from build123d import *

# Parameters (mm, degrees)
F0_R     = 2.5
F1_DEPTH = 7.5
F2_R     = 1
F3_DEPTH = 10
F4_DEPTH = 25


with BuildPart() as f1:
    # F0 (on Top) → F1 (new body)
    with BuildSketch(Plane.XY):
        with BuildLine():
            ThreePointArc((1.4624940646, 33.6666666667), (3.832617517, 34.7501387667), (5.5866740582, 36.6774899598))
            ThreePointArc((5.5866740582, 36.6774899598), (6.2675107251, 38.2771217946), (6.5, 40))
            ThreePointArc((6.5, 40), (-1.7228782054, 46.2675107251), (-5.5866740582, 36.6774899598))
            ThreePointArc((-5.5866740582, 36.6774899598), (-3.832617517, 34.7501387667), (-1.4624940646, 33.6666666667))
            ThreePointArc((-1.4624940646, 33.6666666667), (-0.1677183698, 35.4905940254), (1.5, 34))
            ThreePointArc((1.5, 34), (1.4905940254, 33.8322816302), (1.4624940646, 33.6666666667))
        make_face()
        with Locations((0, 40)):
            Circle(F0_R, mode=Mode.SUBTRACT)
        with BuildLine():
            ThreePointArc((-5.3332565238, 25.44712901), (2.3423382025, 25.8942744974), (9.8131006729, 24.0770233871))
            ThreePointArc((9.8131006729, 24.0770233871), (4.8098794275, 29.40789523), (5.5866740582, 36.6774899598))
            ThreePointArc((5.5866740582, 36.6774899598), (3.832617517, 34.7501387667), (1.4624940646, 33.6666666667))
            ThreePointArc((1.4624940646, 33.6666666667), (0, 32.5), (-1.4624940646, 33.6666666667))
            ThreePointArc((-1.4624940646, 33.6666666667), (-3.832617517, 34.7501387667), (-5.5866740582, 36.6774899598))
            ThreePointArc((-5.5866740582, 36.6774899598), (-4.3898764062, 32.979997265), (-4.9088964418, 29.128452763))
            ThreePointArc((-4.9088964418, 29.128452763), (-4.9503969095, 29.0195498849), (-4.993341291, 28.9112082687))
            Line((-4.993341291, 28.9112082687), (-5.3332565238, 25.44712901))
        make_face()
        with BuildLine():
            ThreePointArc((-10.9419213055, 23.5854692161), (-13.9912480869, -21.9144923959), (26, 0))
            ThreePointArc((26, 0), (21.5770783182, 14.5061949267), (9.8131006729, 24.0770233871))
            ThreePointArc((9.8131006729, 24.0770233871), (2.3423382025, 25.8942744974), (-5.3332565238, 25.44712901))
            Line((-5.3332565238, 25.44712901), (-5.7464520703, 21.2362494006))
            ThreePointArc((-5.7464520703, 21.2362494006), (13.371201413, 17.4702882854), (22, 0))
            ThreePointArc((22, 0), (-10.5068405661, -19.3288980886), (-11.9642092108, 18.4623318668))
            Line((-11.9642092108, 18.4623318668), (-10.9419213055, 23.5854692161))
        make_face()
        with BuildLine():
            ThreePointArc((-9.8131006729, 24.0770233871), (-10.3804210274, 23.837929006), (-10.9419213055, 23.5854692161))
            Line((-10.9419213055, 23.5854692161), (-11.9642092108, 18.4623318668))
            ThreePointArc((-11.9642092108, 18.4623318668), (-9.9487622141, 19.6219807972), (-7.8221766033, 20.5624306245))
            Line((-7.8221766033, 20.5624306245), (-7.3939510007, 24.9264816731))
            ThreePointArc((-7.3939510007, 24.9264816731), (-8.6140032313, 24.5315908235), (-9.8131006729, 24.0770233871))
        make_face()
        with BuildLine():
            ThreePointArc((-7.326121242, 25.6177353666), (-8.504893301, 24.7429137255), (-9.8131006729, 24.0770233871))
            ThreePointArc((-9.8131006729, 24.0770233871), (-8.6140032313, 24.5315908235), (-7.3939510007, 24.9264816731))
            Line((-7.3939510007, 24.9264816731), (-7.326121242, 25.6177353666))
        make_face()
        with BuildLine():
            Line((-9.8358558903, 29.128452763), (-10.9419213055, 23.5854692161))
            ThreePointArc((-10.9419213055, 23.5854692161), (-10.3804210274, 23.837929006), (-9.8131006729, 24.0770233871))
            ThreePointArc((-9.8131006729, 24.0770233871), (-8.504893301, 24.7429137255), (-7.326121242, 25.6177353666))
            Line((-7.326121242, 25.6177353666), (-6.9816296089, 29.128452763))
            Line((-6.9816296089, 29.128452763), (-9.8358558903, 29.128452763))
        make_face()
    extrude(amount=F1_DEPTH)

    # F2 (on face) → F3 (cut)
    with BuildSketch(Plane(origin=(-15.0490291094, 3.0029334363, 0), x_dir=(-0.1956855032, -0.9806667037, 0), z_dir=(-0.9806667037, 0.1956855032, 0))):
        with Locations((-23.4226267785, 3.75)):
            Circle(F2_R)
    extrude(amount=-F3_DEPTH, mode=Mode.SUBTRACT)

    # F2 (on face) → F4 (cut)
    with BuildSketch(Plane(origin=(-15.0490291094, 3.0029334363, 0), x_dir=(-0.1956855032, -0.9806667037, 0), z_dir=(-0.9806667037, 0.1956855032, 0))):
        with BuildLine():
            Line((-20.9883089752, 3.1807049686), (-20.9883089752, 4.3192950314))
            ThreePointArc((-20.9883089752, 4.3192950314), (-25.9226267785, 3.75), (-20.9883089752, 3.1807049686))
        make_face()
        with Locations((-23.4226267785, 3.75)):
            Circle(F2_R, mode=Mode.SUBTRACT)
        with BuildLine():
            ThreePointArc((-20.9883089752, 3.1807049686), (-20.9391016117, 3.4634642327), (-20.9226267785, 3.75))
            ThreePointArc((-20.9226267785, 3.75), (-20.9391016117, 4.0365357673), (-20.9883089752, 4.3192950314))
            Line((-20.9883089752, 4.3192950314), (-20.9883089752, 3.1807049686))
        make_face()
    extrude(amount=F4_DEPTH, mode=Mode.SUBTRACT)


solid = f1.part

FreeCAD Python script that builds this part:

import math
import FreeCAD as App
import Part
import Sketcher
from FreeCAD import Vector
Q = App.Units.Quantity

doc = App.newDocument("Part")
body = doc.addObject("PartDesign::Body", "Body")

# Sketch on XY plane
sketch1 = body.newObject("Sketcher::SketchObject", "Sketch")
sketch1.AttachmentSupport = (doc.getObject("XY_Plane"), [""])
sketch1.MapMode = "FlatFace"
sketch1.addGeometry(Part.ArcOfCircle(Part.Circle(Vector(0, 40, 0), Vector(0, 0, 1), 6.5), math.radians(-31), math.radians(0)), False)
sketch1.addGeometry(Part.ArcOfCircle(Part.Circle(Vector(0, 40, 0), Vector(0, 0, 1), 6.5), math.radians(0), math.radians(211)), False)
sketch1.addGeometry(Part.ArcOfCircle(Part.Circle(Vector(-13.12, 32.2, 0), Vector(0, 0, 1), 8.77), math.radians(-20), math.radians(31)), False)
sketch1.addGeometry(Part.ArcOfCircle(Part.Circle(Vector(-13.12, 32.2, 0), Vector(0, 0, 1), 8.77), math.radians(-22), math.radians(-20.48)), False)
sketch1.addGeometry(Part.LineSegment(Vector(-4.99, 28.91, 0), Vector(-5.33, 25.45, 0)), False)
sketch1.addGeometry(Part.LineSegment(Vector(-5.33, 25.45, 0), Vector(-5.75, 21.24, 0)), False)
sketch1.addGeometry(Part.ArcOfCircle(Part.Circle(Vector(0, 0, 0), Vector(0, 0, 1), 22), math.radians(0), math.radians(105)), False)
sketch1.addGeometry(Part.ArcOfCircle(Part.Circle(Vector(0, 0, 0), Vector(0, 0, 1), 22), math.radians(123), math.radians(360)), False)
sketch1.addGeometry(Part.ArcOfCircle(Part.Circle(Vector(0, 0, 0), Vector(0, 0, 1), 22), math.radians(110.83), math.radians(122.94)), False)
sketch1.addGeometry(Part.LineSegment(Vector(-7.82, 20.56, 0), Vector(-7.39, 24.93, 0)), False)
sketch1.addGeometry(Part.LineSegment(Vector(-7.39, 24.93, 0), Vector(-7.33, 25.62, 0)), False)
sketch1.addGeometry(Part.LineSegment(Vector(-7.33, 25.62, 0), Vector(-6.98, 29.13, 0)), False)
sketch1.addGeometry(Part.LineSegment(Vector(-6.98, 29.13, 0), Vector(-9.84, 29.13, 0)), False)
sketch1.addGeometry(Part.LineSegment(Vector(-9.84, 29.13, 0), Vector(-10.94, 23.59, 0)), False)
sketch1.addGeometry(Part.ArcOfCircle(Part.Circle(Vector(0, 0, 0), Vector(0, 0, 1), 26), math.radians(115), math.radians(360)), False)
sketch1.addGeometry(Part.ArcOfCircle(Part.Circle(Vector(0, 0, 0), Vector(0, 0, 1), 26), math.radians(0), math.radians(68)), False)
sketch1.addGeometry(Part.ArcOfCircle(Part.Circle(Vector(13.12, 32.2, 0), Vector(0, 0, 1), 8.77), math.radians(149), math.radians(248)), False)
sketch1.addGeometry(Part.ArcOfCircle(Part.Circle(Vector(0, 34, 0), Vector(0, 0, 1), 1.5), math.radians(-12.84), math.radians(0)), False)
sketch1.addGeometry(Part.ArcOfCircle(Part.Circle(Vector(0, 34, 0), Vector(0, 0, 1), 1.5), math.radians(-167), math.radians(-13)), False)
sketch1.addGeometry(Part.ArcOfCircle(Part.Circle(Vector(0, 34, 0), Vector(0, 0, 1), 1.5), math.radians(0), math.radians(193)), False)
sketch1.addGeometry(Part.Circle(Vector(0, 40, 0), Vector(0, 0, 1), 2.5), False)
sketch1.addConstraint(Sketcher.Constraint("Tangent", 0, 2, 1, 1))
sketch1.addConstraint(Sketcher.Constraint("Tangent", 1, 2, 2, 2))
sketch1.addConstraint(Sketcher.Constraint("Tangent", 2, 1, 3, 2))
sketch1.addConstraint(Sketcher.Constraint("Coincident", 3, 1, 4, 1))
sketch1.addConstraint(Sketcher.Constraint("Coincident", 4, 2, 5, 1))
sketch1.addConstraint(Sketcher.Constraint("Coincident", 5, 2, 6, 2))
sketch1.addConstraint(Sketcher.Constraint("Tangent", 6, 1, 7, 2))
sketch1.addConstraint(Sketcher.Constraint("Tangent", 7, 1, 8, 2))
sketch1.addConstraint(Sketcher.Constraint("Coincident", 8, 1, 9, 1))
sketch1.addConstraint(Sketcher.Constraint("Coincident", 9, 2, 10, 1))
sketch1.addConstraint(Sketcher.Constraint("Coincident", 10, 2, 11, 1))
sketch1.addConstraint(Sketcher.Constraint("Coincident", 11, 2, 12, 1))
sketch1.addConstraint(Sketcher.Constraint("Coincident", 12, 2, 13, 1))
sketch1.addConstraint(Sketcher.Constraint("Coincident", 13, 2, 14, 1))
sketch1.addConstraint(Sketcher.Constraint("Tangent", 14, 2, 15, 1))
sketch1.addConstraint(Sketcher.Constraint("Tangent", 15, 2, 16, 2))
sketch1.addConstraint(Sketcher.Constraint("Tangent", 16, 1, 0, 1))
sketch1.addConstraint(Sketcher.Constraint("Tangent", 17, 1, 18, 2))
sketch1.addConstraint(Sketcher.Constraint("Tangent", 18, 1, 19, 2))
sketch1.addConstraint(Sketcher.Constraint("Tangent", 19, 1, 17, 2))
sketch1.addConstraint(Sketcher.Constraint("Horizontal", 12))
sketch1.addConstraint(Sketcher.Constraint("Coincident", 6, 3, -1, 1))
sketch1.addConstraint(Sketcher.Constraint("Coincident", 8, 3, -1, 1))
sketch1.addConstraint(Sketcher.Constraint("Coincident", 14, 3, -1, 1))
sketch1.addConstraint(Sketcher.Constraint("Coincident", 20, 3, 0, 3))
sketch1.addConstraint(Sketcher.Constraint("Equal", 0, 1))
sketch1.addConstraint(Sketcher.Constraint("Equal", 2, 3))
sketch1.addConstraint(Sketcher.Constraint("Equal", 14, 15))
sketch1.addConstraint(Sketcher.Constraint("Equal", 3, 16))
sketch1.addConstraint(Sketcher.Constraint("Symmetric", 2, 3, 16, 3, -2))
sketch1.addConstraint(Sketcher.Constraint("Symmetric", 17, 1, 18, 1, -2))
sketch1.addConstraint(Sketcher.Constraint("PointOnObject", 6, 1, -1))
sketch1.addConstraint(Sketcher.Constraint("PointOnObject", 14, 2, -1))
sketch1.addConstraint(Sketcher.Constraint("Parallel", 4, 5))
sketch1.addConstraint(Sketcher.Constraint("Parallel", 5, 9))
sketch1.addConstraint(Sketcher.Constraint("Parallel", 9, 10))
sketch1.addConstraint(Sketcher.Constraint("Parallel", 10, 11))
sketch1.addConstraint(Sketcher.Constraint("Horizontal", 20, 3, 0, 2))
sketch1.addConstraint(Sketcher.Constraint("Horizontal", 2, 1, 11, 2))
sketch1.addConstraint(Sketcher.Constraint("Horizontal", 18, 3, 19, 1))
sketch1.addConstraint(Sketcher.Constraint("Diameter", 20, Q("5 mm")))
sketch1.addConstraint(Sketcher.Constraint("Radius", 6, Q("22 mm")))
sketch1.addConstraint(Sketcher.Constraint("Radius", 14, Q("26 mm")))
sketch1.addConstraint(Sketcher.Constraint("Radius", 0, Q("6.5 mm")))
sketch1.addConstraint(Sketcher.Constraint("Radius", 17, Q("1.5 mm")))
sketch1.addConstraint(Sketcher.Constraint("DistanceY", -1, 1, 0, 3, Q("40 mm")))
sketch1.addConstraint(Sketcher.Constraint("DistanceY", -1, 1, 17, 3, Q("34 mm")))
sketch1.addConstraint(Sketcher.Constraint("Radius", 2, Q("8.767404 mm")))
sketch1.addConstraint(Sketcher.Constraint("DistanceY", 7, 1, 8, 1, Q("2.100099 mm")))
sketch1.addConstraint(Sketcher.Constraint("DistanceY", 8, 1, 4, 2, Q("4.884698 mm")))
sketch1.addConstraint(Sketcher.Constraint("DistanceX", 9, 2, 5, 2, Q("1.647499 mm")))
sketch1.addConstraint(Sketcher.Constraint("DistanceX", 3, 3, 12, 2, Q("3.286299 mm")))
sketch1.addConstraint(Sketcher.Constraint("DistanceX", 13, 2, 10, 2, Q("3.6158 mm")))
sketch1.addConstraint(Sketcher.Constraint("Distance", 9, Q("4.385011 mm")))
sketch1.addConstraint(Sketcher.Constraint("Distance", 11, Q("3.527579 mm")))
sketch1.addConstraint(Sketcher.Constraint("Distance", 13, Q("5.65226 mm")))
sketch1.addConstraint(Sketcher.Constraint("DistanceX", 12, 2, 12, 1, Q("2.854226 mm")))
sketch1.addConstraint(Sketcher.Constraint("DistanceX", 3, 1, -1, 1, Q("4.993341 mm")))
sketch1.addConstraint(Sketcher.Constraint("DistanceX", 17, 1, 16, 1, Q("4.12418 mm")))
pad1 = body.newObject("PartDesign::Pad", "Pad")
pad1.Profile = sketch1
pad1.Length = 7.5

# Sketch on an angled plane
sketch2 = body.newObject("Sketcher::SketchObject", "Sketch001")
sketch2.Placement = App.Placement(Vector(-15.049029, 3.002933, 0), App.Rotation(Vector(-0.195685503, -0.980666704, 0), Vector(0, 0, 1), Vector(-0.980666704, 0.195685503, 0), "ZXY"))
sketch2.addGeometry(Part.Circle(Vector(-23.4, 3.8, 0), Vector(0, 0, 1), 1), False)
sketch2.addConstraint(Sketcher.Constraint("Diameter", 0, Q("2 mm")))
sketch2.addConstraint(Sketcher.Constraint("DistanceY", -1, 1, 0, 3, Q("3.75 mm")))
sketch2.addConstraint(Sketcher.Constraint("DistanceX", 0, 3, -1, 1, Q("23.422627 mm")))
pocket1 = body.newObject("PartDesign::Pocket", "Pocket")
pocket1.Profile = sketch2
pocket1.Length = 10

# Sketch on an angled plane
sketch3 = body.newObject("Sketcher::SketchObject", "Sketch002")
sketch3.Placement = App.Placement(Vector(-15.049029, 3.002933, 0), App.Rotation(Vector(-0.195685503, -0.980666704, 0), Vector(0, 0, 1), Vector(-0.980666704, 0.195685503, 0), "ZXY"))
sketch3.addGeometry(Part.ArcOfCircle(Part.Circle(Vector(-23.4, 3.8, 0), Vector(0, 0, 1), 2.5), math.radians(13), math.radians(347)), False)
sketch3.addGeometry(Part.ArcOfCircle(Part.Circle(Vector(-23.4, 3.8, 0), Vector(0, 0, 1), 2.5), math.radians(-13.16), math.radians(0)), False)
sketch3.addGeometry(Part.ArcOfCircle(Part.Circle(Vector(-23.4, 3.8, 0), Vector(0, 0, 1), 2.5), math.radians(0), math.radians(13.16)), False)
sketch3.addGeometry(Part.Circle(Vector(-23.4, 3.8, 0), Vector(0, 0, 1), 1), False)
sketch3.addConstraint(Sketcher.Constraint("Tangent", 0, 2, 1, 1))
sketch3.addConstraint(Sketcher.Constraint("Tangent", 1, 2, 2, 1))
sketch3.addConstraint(Sketcher.Constraint("Tangent", 2, 2, 0, 1))
sketch3.addConstraint(Sketcher.Constraint("Coincident", 3, 3, 0, 3))
sketch3.addConstraint(Sketcher.Constraint("Horizontal", 3, 3, 1, 2))
sketch3.addConstraint(Sketcher.Constraint("Vertical", 0, 2, 2, 2))
sketch3.addConstraint(Sketcher.Constraint("Diameter", 3, Q("2 mm")))
sketch3.addConstraint(Sketcher.Constraint("Radius", 0, Q("2.5 mm")))
sketch3.addConstraint(Sketcher.Constraint("DistanceY", -1, 1, 0, 3, Q("3.75 mm")))
sketch3.addConstraint(Sketcher.Constraint("DistanceX", 0, 2, -1, 1, Q("20.988309 mm")))
sketch3.addConstraint(Sketcher.Constraint("DistanceY", 0, 2, 2, 2, Q("1.13859 mm")))
pocket2 = body.newObject("PartDesign::Pocket", "Pocket001")
pocket2.Profile = sketch3
pocket2.Length = 25
pocket2.Reversed = True

doc.recompute()
